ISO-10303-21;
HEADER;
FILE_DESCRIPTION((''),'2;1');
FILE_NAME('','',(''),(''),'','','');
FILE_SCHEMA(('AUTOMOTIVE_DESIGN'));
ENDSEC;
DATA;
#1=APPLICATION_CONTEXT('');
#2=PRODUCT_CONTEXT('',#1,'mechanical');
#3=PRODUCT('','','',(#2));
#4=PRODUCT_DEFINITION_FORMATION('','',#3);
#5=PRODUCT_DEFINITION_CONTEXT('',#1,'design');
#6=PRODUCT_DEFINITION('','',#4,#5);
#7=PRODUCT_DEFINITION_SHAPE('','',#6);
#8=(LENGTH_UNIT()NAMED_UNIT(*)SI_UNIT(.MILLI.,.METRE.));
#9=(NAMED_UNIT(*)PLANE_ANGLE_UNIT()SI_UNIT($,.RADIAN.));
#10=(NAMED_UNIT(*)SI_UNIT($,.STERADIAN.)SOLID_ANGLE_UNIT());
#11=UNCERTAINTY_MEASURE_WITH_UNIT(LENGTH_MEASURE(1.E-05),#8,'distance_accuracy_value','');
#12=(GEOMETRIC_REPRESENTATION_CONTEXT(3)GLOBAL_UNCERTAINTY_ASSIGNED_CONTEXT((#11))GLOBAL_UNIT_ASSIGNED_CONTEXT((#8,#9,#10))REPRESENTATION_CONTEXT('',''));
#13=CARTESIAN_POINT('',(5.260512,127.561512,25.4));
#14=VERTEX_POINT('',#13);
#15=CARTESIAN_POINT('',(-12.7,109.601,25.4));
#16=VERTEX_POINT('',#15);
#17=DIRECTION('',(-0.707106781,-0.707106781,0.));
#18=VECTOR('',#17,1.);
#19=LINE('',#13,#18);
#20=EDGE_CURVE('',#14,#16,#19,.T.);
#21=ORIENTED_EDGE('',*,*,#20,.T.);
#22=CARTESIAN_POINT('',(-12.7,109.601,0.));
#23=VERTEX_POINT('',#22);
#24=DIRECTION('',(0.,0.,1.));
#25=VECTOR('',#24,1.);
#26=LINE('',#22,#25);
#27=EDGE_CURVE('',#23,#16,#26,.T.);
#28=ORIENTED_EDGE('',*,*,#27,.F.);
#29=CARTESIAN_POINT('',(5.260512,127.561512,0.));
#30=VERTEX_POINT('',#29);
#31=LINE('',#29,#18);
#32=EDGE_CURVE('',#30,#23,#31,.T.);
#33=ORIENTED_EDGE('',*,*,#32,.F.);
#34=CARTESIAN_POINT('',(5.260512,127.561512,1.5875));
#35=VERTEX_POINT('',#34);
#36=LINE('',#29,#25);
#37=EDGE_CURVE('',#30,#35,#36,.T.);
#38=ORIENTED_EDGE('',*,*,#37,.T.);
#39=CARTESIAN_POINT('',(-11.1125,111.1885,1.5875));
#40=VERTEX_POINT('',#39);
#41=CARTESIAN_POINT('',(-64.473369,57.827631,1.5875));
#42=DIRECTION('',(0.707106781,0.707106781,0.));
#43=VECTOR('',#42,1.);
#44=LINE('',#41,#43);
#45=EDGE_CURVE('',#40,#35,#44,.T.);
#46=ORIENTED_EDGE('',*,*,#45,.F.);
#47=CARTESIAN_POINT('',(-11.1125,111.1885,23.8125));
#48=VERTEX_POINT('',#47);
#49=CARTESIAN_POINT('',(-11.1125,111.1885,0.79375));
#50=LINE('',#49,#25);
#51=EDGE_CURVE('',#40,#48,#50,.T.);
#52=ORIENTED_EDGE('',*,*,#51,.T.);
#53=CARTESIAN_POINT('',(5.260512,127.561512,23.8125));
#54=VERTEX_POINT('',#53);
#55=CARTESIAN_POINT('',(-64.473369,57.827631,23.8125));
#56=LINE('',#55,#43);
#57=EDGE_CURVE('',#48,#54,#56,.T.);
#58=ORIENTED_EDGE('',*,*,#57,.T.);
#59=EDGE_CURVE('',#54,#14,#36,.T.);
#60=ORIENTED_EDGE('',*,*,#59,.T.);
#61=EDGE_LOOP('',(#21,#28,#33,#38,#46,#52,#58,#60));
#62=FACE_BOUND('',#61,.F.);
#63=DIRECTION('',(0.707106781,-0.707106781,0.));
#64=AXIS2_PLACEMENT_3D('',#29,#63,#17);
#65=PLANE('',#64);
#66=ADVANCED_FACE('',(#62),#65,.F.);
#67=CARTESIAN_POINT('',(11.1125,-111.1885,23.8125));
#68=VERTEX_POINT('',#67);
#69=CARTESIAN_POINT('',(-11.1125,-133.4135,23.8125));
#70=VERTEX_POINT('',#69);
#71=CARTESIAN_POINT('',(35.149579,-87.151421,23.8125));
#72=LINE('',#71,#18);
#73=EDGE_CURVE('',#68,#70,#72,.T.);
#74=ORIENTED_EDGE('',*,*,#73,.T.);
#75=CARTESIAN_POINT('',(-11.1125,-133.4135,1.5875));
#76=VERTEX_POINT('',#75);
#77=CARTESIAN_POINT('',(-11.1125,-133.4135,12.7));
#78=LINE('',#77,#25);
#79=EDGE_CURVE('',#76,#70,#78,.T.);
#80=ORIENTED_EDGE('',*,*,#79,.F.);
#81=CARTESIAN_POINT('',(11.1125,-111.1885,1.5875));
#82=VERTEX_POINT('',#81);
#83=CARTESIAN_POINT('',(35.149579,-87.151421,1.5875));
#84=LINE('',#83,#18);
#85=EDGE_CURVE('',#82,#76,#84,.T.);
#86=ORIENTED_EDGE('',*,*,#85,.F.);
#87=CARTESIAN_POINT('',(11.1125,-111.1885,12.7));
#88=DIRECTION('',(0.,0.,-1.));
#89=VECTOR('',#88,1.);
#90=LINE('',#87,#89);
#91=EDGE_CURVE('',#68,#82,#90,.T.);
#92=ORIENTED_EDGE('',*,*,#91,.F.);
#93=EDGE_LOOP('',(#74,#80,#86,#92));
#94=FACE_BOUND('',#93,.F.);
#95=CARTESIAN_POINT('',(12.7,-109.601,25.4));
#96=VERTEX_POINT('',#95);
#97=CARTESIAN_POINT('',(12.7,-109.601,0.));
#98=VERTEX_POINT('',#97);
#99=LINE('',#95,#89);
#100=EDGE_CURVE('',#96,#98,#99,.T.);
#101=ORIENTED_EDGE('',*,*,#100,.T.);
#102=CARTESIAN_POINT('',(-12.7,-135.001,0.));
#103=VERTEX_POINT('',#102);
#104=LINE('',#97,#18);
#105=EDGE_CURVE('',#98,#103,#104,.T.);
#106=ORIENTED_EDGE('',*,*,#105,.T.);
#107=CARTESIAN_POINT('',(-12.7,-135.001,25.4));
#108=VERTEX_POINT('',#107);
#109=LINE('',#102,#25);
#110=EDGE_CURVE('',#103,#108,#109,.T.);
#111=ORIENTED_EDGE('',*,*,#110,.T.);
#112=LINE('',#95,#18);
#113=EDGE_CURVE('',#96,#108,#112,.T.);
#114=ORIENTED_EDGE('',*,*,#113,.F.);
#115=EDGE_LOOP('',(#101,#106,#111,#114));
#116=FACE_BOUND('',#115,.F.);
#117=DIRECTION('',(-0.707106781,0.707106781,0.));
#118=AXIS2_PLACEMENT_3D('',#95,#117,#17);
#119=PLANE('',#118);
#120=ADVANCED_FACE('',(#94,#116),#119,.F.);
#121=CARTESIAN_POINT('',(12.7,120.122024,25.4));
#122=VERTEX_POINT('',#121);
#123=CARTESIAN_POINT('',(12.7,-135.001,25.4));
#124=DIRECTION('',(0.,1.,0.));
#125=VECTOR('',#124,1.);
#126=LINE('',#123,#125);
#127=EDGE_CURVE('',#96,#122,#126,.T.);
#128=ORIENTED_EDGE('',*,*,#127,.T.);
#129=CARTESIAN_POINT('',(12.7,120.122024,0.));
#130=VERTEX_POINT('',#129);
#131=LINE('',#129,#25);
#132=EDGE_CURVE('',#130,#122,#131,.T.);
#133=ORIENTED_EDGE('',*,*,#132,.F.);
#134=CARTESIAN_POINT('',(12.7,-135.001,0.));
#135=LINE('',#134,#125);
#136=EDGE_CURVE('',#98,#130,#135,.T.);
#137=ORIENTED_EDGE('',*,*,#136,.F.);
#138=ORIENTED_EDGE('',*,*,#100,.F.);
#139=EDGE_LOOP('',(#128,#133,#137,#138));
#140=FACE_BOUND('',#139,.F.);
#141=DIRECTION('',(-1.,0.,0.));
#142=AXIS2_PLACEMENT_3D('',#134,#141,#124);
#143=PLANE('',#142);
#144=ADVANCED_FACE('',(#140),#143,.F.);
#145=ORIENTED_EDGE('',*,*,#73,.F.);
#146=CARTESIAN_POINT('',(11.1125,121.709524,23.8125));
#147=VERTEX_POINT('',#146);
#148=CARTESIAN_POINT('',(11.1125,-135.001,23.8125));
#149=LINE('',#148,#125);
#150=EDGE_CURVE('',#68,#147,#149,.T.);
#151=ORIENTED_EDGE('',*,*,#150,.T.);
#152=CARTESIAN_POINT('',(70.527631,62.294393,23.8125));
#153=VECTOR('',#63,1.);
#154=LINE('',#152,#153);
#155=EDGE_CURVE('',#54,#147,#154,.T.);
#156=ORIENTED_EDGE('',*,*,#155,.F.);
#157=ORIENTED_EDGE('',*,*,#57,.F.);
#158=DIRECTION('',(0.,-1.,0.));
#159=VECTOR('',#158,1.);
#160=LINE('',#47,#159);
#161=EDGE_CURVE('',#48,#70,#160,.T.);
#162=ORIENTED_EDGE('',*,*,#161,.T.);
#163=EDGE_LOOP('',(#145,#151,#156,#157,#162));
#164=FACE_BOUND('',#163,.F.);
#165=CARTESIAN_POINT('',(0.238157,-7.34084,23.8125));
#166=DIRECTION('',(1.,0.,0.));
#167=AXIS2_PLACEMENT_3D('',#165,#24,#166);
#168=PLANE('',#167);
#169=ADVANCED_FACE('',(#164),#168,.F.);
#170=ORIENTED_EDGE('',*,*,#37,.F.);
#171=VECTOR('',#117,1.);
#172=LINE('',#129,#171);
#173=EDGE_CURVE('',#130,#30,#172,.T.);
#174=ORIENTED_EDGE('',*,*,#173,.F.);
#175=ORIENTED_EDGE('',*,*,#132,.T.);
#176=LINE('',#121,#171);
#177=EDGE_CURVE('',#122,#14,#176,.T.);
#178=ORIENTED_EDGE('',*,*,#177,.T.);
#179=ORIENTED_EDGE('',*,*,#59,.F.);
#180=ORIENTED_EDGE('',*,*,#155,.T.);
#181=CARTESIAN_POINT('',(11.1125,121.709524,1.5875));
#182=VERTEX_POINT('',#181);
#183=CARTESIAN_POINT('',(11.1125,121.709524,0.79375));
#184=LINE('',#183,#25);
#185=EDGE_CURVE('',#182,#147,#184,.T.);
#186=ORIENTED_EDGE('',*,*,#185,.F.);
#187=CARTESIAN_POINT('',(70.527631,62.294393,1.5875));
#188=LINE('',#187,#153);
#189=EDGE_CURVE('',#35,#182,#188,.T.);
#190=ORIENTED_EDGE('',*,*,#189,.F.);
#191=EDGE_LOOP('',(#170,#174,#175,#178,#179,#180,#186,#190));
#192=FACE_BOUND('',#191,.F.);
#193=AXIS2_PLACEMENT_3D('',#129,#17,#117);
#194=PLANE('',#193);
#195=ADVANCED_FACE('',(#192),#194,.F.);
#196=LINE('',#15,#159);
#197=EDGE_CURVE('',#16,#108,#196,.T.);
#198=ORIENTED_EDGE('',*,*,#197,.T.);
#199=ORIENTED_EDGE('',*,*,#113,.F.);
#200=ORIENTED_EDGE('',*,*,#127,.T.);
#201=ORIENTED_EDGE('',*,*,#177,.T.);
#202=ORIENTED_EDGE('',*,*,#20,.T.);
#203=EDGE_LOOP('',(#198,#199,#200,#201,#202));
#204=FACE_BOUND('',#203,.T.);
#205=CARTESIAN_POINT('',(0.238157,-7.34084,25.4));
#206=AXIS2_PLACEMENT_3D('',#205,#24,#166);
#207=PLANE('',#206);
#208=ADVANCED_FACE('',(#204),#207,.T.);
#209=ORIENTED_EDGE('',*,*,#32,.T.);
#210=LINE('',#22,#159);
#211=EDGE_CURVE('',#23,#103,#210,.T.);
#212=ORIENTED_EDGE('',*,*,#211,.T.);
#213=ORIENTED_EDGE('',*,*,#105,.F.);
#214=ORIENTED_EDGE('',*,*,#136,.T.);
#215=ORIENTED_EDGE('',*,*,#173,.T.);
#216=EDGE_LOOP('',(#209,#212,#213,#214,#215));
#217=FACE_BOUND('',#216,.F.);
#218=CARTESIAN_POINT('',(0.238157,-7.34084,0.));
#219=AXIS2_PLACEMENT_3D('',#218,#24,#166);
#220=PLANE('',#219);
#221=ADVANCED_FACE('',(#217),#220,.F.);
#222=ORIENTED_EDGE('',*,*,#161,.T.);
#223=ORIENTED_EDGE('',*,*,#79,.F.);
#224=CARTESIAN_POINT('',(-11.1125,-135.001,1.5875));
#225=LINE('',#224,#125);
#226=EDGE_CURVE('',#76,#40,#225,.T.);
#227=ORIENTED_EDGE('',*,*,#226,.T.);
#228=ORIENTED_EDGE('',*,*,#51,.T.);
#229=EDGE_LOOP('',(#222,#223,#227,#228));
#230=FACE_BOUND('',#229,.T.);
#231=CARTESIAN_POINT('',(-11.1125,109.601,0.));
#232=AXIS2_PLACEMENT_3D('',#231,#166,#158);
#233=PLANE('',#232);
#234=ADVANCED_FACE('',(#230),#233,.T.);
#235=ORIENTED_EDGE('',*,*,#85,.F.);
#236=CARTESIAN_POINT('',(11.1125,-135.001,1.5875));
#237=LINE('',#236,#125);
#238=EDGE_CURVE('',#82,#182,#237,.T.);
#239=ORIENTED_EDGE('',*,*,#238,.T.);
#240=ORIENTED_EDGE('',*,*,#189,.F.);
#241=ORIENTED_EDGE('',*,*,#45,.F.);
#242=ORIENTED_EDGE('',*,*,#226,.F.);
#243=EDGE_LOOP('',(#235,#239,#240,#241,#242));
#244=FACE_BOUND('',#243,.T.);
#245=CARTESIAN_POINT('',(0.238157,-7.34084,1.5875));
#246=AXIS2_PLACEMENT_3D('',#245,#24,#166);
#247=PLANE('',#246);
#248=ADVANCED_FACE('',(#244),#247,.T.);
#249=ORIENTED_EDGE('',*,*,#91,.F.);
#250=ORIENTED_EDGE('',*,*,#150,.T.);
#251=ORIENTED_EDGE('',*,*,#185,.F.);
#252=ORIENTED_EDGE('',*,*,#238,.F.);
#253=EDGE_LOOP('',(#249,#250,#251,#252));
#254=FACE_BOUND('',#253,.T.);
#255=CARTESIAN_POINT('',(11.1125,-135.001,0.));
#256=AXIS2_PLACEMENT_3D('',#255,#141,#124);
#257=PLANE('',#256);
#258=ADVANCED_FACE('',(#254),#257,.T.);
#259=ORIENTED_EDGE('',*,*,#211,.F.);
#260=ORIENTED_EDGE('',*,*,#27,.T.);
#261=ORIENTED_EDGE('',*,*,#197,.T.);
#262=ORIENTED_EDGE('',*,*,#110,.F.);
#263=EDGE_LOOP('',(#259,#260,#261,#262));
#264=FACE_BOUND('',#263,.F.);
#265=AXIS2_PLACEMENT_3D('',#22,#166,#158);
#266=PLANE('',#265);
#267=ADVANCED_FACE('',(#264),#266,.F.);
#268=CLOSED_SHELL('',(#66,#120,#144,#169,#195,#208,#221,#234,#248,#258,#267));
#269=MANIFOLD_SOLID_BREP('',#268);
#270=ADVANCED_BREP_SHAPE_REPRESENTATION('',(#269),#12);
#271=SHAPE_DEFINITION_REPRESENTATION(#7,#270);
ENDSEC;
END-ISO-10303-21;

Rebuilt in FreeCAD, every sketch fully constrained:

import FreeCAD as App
import Part
import Sketcher
Q = App.Units.Quantity


def faces_at(feature, points):
    """Names of the faces that lie closest to the given points."""
    faces = feature.Shape.Faces
    near = lambda p: min(range(len(faces)), key=lambda i: faces[i].distToShape(Part.Vertex(*p))[0])
    return sorted({f"Face{near(p) + 1}" for p in points})


def add_polygon(sketch, points):
    """Adds a closed chain of lines whose ends are joined by coincident constraints."""
    first, n = sketch.GeometryCount, len(points)
    for a, b in zip(points, points[1:] + points[:1]):
        sketch.addGeometry(Part.LineSegment(App.Vector(*a, 0), App.Vector(*b, 0)), False)
    for i in range(n):
        sketch.addConstraint(Sketcher.Constraint("Coincident", first + i, 2, first + (i + 1) % n, 1))

doc = App.newDocument("Part")
params = doc.addObject("Spreadsheet::Sheet", "Params")
for row, (alias, value) in enumerate([
    ("sketch1_width", "1 in"),
    ("sketch1_length", "1 in"),
    ("sketch1_height", "9.63 in"),
    ("pad1_length", "1 in"),
    ("thickness_wall", "0.0625 in"),
    ("sketch2_width", "0.875 in"),
    ("sketch3_width", "1 in"),
    ("pocket2_length", "1 in"),
], start=1):
    params.set(f"A{row}", alias)
    params.set(f"B{row}", "=" + value)
    params.setAlias(f"B{row}", alias)

body = doc.addObject("PartDesign::Body", "Body")

# Sketch on XY plane
sketch1 = doc.addObject("Sketcher::SketchObject", "Sketch")
body.addObject(sketch1)
sketch1.AttachmentSupport = (doc.XY_Plane, [""])
sketch1.MapMode = "FlatFace"
add_polygon(sketch1, [(5, 128), (-13, 110), (-13, -135), (13, -135), (13, 120)])  # lines 0-4
sketch1.addConstraint(Sketcher.Constraint("Vertical", 1))
sketch1.addConstraint(Sketcher.Constraint("Horizontal", 2))
sketch1.addConstraint(Sketcher.Constraint("Vertical", 3))
sketch1.addConstraint(Sketcher.Constraint("Perpendicular", 0, 4))
sketch1.addConstraint(Sketcher.Constraint("DistanceX", 2, 1, 2, 2, Q("1 in")))
sketch1.addConstraint(Sketcher.Constraint("Distance", 0, Q("1 in")))
sketch1.addConstraint(Sketcher.Constraint("Angle", 0, Q("-135 deg")))
sketch1.addConstraint(Sketcher.Constraint("DistanceY", 1, 2, 1, 1, Q("9.63 in")))
sketch1.addConstraint(Sketcher.Constraint("DistanceX", 0, 2, -1, 1, Q("0.5 in")))
sketch1.addConstraint(Sketcher.Constraint("DistanceY", -1, 1, 0, 2, Q("4.315 in")))
sketch1.setExpression("Constraints[9]", "Params.sketch1_width")
sketch1.setExpression("Constraints[10]", "Params.sketch1_length")
sketch1.setExpression("Constraints[12]", "Params.sketch1_height")
pad1 = doc.addObject("PartDesign::Pad", "Pad")
body.addObject(pad1)
pad1.Profile = sketch1
pad1.setExpression("Length", "Params.pad1_length")
doc.recompute()

thickness = doc.addObject("PartDesign::Thickness", "Thickness")
body.addObject(thickness)
thickness.Base = (pad1, faces_at(pad1, [(0, -135.001, 12.7)]))
thickness.setExpression("Value", "Params.thickness_wall")
thickness.Reversed = True
thickness.Join = "Arc"

# Sketch on XZ plane
sketch2 = doc.addObject("Sketcher::SketchObject", "Sketch001")
body.addObject(sketch2)
sketch2.AttachmentSupport = (doc.XZ_Plane, [""])
sketch2.MapMode = "FlatFace"
sketch2.AttachmentOffset = App.Placement(App.Vector(0, 0, 5.315 * 25.4), App.Rotation())
add_polygon(sketch2, [(-11, 24), (-11, 2), (11, 2), (11, 24)])  # lines 0-3
sketch2.addConstraint(Sketcher.Constraint("Vertical", 0))
sketch2.addConstraint(Sketcher.Constraint("Horizontal", 1))
sketch2.addConstraint(Sketcher.Constraint("Vertical", 2))
sketch2.addConstraint(Sketcher.Constraint("Horizontal", 3))
sketch2.addConstraint(Sketcher.Constraint("Equal", 3, 0))
sketch2.addConstraint(Sketcher.Constraint("DistanceX", 1, 1, 1, 2, Q("0.875 in")))
sketch2.addConstraint(Sketcher.Constraint("DistanceX", 0, 2, -1, 1, Q("0.4375 in")))
sketch2.addConstraint(Sketcher.Constraint("DistanceY", -1, 1, 0, 2, Q("0.0625 in")))
sketch2.setExpression("Constraints[9]", "Params.sketch2_width")
pocket1 = doc.addObject("PartDesign::Pocket", "Pocket")
body.addObject(pocket1)
pocket1.Profile = sketch2
pocket1.Type = "ThroughAll"

# Sketch on XY plane
sketch3 = doc.addObject("Sketcher::SketchObject", "Sketch002")
body.addObject(sketch3)
sketch3.AttachmentSupport = (doc.XY_Plane, [""])
sketch3.MapMode = "FlatFace"
sketch3.AttachmentOffset = App.Placement(App.Vector(0, 0, 1 * 25.4), App.Rotation())
add_polygon(sketch3, [(13, -110), (-13, -135), (13, -135)])  # lines 0-2
sketch3.addConstraint(Sketcher.Constraint("Horizontal", 1))
sketch3.addConstraint(Sketcher.Constraint("Vertical", 2))
sketch3.addConstraint(Sketcher.Constraint("Equal", 1, 2))
sketch3.addConstraint(Sketcher.Constraint("DistanceX", 1, 1, 1, 2, Q("1 in")))
sketch3.addConstraint(Sketcher.Constraint("DistanceX", 0, 2, -1, 1, Q("0.5 in")))
sketch3.addConstraint(Sketcher.Constraint("DistanceY", 0, 2, -1, 1, Q("5.315 in")))
sketch3.setExpression("Constraints[6]", "Params.sketch3_width")
pocket2 = doc.addObject("PartDesign::Pocket", "Pocket001")
body.addObject(pocket2)
pocket2.Profile = sketch3
pocket2.setExpression("Length", "Params.pocket2_length")

doc.recompute()
